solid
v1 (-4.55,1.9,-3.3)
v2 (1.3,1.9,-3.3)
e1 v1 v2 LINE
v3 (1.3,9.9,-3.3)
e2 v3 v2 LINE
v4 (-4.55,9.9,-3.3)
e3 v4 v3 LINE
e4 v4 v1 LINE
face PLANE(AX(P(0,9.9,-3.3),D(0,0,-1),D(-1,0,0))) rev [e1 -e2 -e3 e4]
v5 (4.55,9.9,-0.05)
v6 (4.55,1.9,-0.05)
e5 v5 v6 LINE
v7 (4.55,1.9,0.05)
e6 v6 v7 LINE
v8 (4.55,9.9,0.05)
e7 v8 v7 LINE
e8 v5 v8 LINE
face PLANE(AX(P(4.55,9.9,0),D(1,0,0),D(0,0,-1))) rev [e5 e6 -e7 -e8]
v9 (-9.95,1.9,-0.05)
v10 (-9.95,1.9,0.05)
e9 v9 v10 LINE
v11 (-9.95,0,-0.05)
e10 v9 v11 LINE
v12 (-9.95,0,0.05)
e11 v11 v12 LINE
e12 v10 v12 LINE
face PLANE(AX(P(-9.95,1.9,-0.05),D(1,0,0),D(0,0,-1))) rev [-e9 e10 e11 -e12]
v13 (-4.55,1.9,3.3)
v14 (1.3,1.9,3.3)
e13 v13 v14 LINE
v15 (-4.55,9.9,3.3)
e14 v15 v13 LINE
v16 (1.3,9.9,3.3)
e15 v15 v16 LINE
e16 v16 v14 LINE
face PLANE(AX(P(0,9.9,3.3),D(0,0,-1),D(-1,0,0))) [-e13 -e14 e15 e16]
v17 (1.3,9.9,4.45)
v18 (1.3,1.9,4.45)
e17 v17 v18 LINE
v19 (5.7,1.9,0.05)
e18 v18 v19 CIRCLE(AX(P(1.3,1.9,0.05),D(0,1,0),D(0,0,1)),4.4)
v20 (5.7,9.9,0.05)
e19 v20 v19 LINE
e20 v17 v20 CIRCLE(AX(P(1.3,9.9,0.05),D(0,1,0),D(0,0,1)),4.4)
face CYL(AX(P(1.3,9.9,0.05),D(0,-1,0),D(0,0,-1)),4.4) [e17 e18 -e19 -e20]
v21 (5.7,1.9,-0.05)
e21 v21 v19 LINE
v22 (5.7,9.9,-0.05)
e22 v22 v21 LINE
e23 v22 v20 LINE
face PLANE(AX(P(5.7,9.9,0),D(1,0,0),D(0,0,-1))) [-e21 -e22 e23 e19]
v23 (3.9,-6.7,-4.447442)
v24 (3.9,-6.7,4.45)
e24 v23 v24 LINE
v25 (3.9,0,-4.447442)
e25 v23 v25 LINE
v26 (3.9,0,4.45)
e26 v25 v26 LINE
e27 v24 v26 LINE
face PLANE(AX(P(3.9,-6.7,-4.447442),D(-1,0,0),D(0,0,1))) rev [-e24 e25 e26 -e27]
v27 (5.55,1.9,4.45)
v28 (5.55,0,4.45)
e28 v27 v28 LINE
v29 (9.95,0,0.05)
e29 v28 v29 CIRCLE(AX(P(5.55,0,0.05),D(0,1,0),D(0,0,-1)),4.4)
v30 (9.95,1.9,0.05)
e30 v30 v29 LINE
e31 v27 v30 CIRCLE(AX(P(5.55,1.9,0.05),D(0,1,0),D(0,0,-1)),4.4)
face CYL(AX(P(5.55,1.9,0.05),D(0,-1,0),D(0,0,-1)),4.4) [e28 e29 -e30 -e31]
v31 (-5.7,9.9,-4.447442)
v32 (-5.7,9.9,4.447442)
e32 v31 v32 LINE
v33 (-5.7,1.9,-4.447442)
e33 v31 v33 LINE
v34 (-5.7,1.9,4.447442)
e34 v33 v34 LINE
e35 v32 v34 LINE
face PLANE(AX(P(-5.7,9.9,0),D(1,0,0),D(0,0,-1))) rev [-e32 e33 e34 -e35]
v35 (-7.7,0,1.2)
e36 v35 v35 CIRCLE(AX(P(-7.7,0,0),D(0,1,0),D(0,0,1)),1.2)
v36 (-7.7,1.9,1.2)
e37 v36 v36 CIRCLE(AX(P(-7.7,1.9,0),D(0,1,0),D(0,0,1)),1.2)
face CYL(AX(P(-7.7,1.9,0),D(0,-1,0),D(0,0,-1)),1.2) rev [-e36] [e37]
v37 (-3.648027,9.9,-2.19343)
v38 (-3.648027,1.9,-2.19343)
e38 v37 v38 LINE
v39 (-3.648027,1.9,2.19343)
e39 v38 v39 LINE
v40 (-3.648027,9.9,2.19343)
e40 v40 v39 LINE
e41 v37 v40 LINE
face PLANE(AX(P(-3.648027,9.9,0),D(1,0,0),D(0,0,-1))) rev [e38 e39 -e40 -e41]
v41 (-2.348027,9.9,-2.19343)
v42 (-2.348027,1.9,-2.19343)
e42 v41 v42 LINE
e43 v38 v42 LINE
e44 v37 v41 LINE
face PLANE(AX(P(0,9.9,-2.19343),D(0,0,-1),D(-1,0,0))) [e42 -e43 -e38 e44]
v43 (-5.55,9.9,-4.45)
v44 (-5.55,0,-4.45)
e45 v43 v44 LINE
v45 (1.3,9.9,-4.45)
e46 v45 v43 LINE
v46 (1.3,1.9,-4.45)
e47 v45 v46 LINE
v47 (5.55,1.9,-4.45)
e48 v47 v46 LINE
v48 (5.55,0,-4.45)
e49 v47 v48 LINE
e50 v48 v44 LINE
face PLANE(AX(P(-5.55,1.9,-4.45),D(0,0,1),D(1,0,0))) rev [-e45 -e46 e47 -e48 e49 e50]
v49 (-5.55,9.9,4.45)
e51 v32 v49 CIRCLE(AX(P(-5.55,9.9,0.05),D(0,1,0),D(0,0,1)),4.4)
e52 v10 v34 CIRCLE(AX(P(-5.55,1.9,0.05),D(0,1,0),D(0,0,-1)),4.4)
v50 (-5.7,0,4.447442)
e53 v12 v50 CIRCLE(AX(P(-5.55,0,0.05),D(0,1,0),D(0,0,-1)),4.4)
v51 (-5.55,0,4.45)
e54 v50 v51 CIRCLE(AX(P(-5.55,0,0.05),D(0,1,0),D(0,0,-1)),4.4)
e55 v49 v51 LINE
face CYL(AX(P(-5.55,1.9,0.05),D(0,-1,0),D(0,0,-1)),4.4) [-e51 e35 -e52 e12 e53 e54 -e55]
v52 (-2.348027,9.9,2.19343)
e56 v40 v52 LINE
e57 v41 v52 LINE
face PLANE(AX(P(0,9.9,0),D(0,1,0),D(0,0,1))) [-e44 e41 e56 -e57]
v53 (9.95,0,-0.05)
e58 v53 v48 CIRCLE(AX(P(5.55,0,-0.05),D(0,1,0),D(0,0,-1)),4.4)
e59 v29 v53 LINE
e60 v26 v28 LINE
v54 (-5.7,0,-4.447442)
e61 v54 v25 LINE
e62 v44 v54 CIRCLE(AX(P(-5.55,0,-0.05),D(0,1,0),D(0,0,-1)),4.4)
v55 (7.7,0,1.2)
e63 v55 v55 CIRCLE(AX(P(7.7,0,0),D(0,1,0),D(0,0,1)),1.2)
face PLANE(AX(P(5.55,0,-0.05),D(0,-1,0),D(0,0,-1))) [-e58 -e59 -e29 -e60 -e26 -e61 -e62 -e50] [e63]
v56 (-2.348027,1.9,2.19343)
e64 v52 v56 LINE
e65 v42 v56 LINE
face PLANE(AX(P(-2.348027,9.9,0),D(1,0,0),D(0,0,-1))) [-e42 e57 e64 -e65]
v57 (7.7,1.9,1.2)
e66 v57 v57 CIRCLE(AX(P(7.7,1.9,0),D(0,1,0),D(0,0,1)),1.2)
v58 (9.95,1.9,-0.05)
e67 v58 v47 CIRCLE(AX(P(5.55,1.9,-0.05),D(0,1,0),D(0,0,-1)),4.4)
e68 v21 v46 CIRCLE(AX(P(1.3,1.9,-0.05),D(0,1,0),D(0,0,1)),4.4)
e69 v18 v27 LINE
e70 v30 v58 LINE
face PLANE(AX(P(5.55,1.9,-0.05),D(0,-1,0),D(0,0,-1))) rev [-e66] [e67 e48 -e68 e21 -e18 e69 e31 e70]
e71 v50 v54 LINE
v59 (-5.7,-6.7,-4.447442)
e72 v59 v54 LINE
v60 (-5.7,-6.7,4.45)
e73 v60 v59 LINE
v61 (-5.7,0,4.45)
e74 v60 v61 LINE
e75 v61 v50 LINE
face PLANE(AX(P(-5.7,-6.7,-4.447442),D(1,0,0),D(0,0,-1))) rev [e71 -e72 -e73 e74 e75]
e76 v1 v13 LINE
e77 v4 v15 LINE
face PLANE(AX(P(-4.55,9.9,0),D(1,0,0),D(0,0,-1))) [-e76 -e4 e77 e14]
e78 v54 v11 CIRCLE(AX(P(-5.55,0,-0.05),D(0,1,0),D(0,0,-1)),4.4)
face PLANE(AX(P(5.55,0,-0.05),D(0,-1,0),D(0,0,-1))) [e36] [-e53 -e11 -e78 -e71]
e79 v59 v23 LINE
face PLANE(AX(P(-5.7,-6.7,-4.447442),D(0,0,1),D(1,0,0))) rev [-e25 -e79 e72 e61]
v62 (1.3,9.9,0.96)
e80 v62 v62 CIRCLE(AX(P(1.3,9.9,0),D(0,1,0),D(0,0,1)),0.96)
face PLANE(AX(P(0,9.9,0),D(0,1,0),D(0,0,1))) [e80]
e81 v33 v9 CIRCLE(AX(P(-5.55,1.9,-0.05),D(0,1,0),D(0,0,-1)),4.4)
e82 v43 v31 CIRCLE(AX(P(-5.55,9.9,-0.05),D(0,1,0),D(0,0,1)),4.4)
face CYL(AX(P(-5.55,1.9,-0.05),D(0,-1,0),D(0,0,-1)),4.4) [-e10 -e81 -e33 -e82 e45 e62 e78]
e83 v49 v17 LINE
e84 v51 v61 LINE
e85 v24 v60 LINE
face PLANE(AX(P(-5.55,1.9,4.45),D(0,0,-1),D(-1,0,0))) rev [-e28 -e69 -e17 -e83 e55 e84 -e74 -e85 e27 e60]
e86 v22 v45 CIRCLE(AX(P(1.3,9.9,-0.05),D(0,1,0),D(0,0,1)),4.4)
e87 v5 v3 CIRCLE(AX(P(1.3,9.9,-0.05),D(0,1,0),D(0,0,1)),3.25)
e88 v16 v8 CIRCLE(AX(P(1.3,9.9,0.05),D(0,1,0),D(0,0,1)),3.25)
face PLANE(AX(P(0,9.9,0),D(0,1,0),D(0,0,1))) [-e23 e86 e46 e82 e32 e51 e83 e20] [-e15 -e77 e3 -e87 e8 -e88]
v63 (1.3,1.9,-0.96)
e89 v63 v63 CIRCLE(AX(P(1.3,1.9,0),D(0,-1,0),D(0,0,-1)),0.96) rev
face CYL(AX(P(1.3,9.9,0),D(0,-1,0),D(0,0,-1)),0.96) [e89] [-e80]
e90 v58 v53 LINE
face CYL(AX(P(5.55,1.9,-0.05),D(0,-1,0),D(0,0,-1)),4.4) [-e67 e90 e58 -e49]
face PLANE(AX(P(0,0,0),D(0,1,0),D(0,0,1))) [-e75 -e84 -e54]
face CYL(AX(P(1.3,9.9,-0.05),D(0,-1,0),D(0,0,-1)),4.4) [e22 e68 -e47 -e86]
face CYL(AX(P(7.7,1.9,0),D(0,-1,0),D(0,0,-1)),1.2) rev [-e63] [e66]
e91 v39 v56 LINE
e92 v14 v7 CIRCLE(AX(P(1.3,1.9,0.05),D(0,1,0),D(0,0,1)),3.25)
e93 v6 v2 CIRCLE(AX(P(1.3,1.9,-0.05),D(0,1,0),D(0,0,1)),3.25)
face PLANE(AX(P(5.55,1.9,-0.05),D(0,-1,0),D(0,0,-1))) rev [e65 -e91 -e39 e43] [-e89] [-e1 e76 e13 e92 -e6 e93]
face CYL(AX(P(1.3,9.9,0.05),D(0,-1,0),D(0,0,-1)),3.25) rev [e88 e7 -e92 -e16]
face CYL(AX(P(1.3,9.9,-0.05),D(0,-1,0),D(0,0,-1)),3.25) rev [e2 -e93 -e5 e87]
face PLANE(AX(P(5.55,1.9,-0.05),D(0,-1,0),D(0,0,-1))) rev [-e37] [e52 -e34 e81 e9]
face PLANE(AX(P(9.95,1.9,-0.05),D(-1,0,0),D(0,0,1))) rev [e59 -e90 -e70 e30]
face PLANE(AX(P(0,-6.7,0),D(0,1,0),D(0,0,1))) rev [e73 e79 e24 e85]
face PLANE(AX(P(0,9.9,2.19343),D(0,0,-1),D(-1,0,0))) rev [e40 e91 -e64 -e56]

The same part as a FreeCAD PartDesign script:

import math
import FreeCAD as App
import Part
import Sketcher

doc = App.newDocument("Part")
body = doc.addObject("PartDesign::Body", "Body")

# Sketch on XZ plane
sketch1 = body.newObject("Sketcher::SketchObject", "Sketch")
sketch1.AttachmentSupport = (doc.getObject("XZ_Plane"), [""])
sketch1.MapMode = "FlatFace"
sketch1.addGeometry(Part.LineSegment(App.Vector(5.55, -4.45, 0), App.Vector(-5.55, -4.45, 0)), False)
sketch1.addGeometry(Part.ArcOfCircle(Part.Circle(App.Vector(-5.55, -0.05, 0), App.Vector(0, 0, 1), 4.4), math.radians(-180), math.radians(-90)), False)
sketch1.addGeometry(Part.LineSegment(App.Vector(-9.95, -0.05, 0), App.Vector(-9.95, 0.05, 0)), False)
sketch1.addGeometry(Part.ArcOfCircle(Part.Circle(App.Vector(-5.55, 0.05, 0), App.Vector(0, 0, 1), 4.4), math.radians(90), math.radians(180)), False)
sketch1.addGeometry(Part.LineSegment(App.Vector(-5.55, 4.45, 0), App.Vector(5.55, 4.45, 0)), False)
sketch1.addGeometry(Part.ArcOfCircle(Part.Circle(App.Vector(5.55, 0.05, 0), App.Vector(0, 0, 1), 4.4), math.radians(0), math.radians(90)), False)
sketch1.addGeometry(Part.LineSegment(App.Vector(9.95, 0.05, 0), App.Vector(9.95, -0.05, 0)), False)
sketch1.addGeometry(Part.ArcOfCircle(Part.Circle(App.Vector(5.55, -0.05, 0), App.Vector(0, 0, 1), 4.4), math.radians(-90), math.radians(0)), False)
sketch1.addGeometry(Part.Circle(App.Vector(7.7, 0, 0), App.Vector(0, 0, 1), 1.2), False)
sketch1.addGeometry(Part.Circle(App.Vector(-7.7, 0, 0), App.Vector(0, 0, 1), 1.2), False)
sketch1.addConstraint(Sketcher.Constraint("Tangent", 0, 2, 1, 2))
sketch1.addConstraint(Sketcher.Constraint("Tangent", 1, 1, 2, 1))
sketch1.addConstraint(Sketcher.Constraint("Tangent", 2, 2, 3, 2))
sketch1.addConstraint(Sketcher.Constraint("Tangent", 3, 1, 4, 1))
sketch1.addConstraint(Sketcher.Constraint("Tangent", 4, 2, 5, 2))
sketch1.addConstraint(Sketcher.Constraint("Tangent", 5, 1, 6, 1))
sketch1.addConstraint(Sketcher.Constraint("Tangent", 6, 2, 7, 2))
sketch1.addConstraint(Sketcher.Constraint("Tangent", 7, 1, 0, 1))
sketch1.addConstraint(Sketcher.Constraint("Horizontal", 0))
sketch1.addConstraint(Sketcher.Constraint("Vertical", 2))
sketch1.addConstraint(Sketcher.Constraint("Horizontal", 4))
sketch1.addConstraint(Sketcher.Constraint("Vertical", 6))
sketch1.addConstraint(Sketcher.Constraint("Equal", 1, 3))
sketch1.addConstraint(Sketcher.Constraint("Equal", 3, 5))
sketch1.addConstraint(Sketcher.Constraint("Equal", 5, 7))
sketch1.addConstraint(Sketcher.Constraint("Equal", 8, 9))
sketch1.addConstraint(Sketcher.Constraint("Symmetric", 1, 3, 5, 3, -1, 1))
sketch1.addConstraint(Sketcher.Constraint("Symmetric", 8, 3, 9, 3, -1, 1))
sketch1.addConstraint(Sketcher.Constraint("PointOnObject", 8, 3, -1))
sketch1.addConstraint(Sketcher.Constraint("Diameter", 8, 2.4))
sketch1.addConstraint(Sketcher.Constraint("Radius", 1, 4.4))
sketch1.addConstraint(Sketcher.Constraint("DistanceX", 0, 2, 0, 1, 11.1))
sketch1.addConstraint(Sketcher.Constraint("DistanceY", 2, 1, 2, 2, 0.1))
sketch1.addConstraint(Sketcher.Constraint("DistanceX", -1, 1, 8, 3, 7.7))
pad1 = body.newObject("PartDesign::Pad", "Pad")
pad1.Profile = sketch1
pad1.Length = 1.9
pad1.Reversed = True

# Sketch on XZ plane
sketch2 = body.newObject("Sketcher::SketchObject", "Sketch001")
sketch2.AttachmentSupport = (doc.getObject("XZ_Plane"), [""])
sketch2.MapMode = "FlatFace"
sketch2.AttachmentOffset = App.Placement(App.Vector(0, 0, -1.9), App.Rotation())
sketch2.addGeometry(Part.LineSegment(App.Vector(1.3, -4.45, 0), App.Vector(-5.55, -4.45, 0)), False)
sketch2.addGeometry(Part.ArcOfCircle(Part.Circle(App.Vector(-5.55, -0.05, 0), App.Vector(0, 0, 1), 4.4), math.radians(-91.95), math.radians(-90)), False)
sketch2.addGeometry(Part.LineSegment(App.Vector(-5.7, -4.45, 0), App.Vector(-5.7, 4.45, 0)), False)
sketch2.addGeometry(Part.ArcOfCircle(Part.Circle(App.Vector(-5.55, 0.05, 0), App.Vector(0, 0, 1), 4.4), math.radians(90), math.radians(91.95)), False)
sketch2.addGeometry(Part.LineSegment(App.Vector(-5.55, 4.45, 0), App.Vector(1.3, 4.45, 0)), False)
sketch2.addGeometry(Part.ArcOfCircle(Part.Circle(App.Vector(1.3, 0.05, 0), App.Vector(0, 0, 1), 4.4), math.radians(0), math.radians(90)), False)
sketch2.addGeometry(Part.LineSegment(App.Vector(5.7, 0.05, 0), App.Vector(5.7, -0.05, 0)), False)
sketch2.addGeometry(Part.ArcOfCircle(Part.Circle(App.Vector(1.3, -0.05, 0), App.Vector(0, 0, 1), 4.4), math.radians(-90), math.radians(0)), False)
sketch2.addGeometry(Part.LineSegment(App.Vector(1.3, 3.3, 0), App.Vector(-4.55, 3.3, 0)), False)
sketch2.addGeometry(Part.LineSegment(App.Vector(-4.55, 3.3, 0), App.Vector(-4.55, -3.3, 0)), False)
sketch2.addGeometry(Part.LineSegment(App.Vector(-4.55, -3.3, 0), App.Vector(1.3, -3.3, 0)), False)
sketch2.addGeometry(Part.ArcOfCircle(Part.Circle(App.Vector(1.3, -0.05, 0), App.Vector(0, 0, 1), 3.25), math.radians(-90), math.radians(0)), False)
sketch2.addGeometry(Part.LineSegment(App.Vector(4.55, -0.05, 0), App.Vector(4.55, 0.05, 0)), False)
sketch2.addGeometry(Part.ArcOfCircle(Part.Circle(App.Vector(1.3, 0.05, 0), App.Vector(0, 0, 1), 3.25), math.radians(0), math.radians(90)), False)
sketch2.addGeometry(Part.LineSegment(App.Vector(-3.65, -2.19, 0), App.Vector(-3.65, 2.19, 0)), False)
sketch2.addGeometry(Part.LineSegment(App.Vector(-3.65, 2.19, 0), App.Vector(-2.35, 2.19, 0)), False)
sketch2.addGeometry(Part.LineSegment(App.Vector(-2.35, 2.19, 0), App.Vector(-2.35, -2.19, 0)), False)
sketch2.addGeometry(Part.LineSegment(App.Vector(-2.35, -2.19, 0), App.Vector(-3.65, -2.19, 0)), False)
sketch2.addGeometry(Part.Circle(App.Vector(1.3, 0, 0), App.Vector(0, 0, 1), 0.96), False)
sketch2.addConstraint(Sketcher.Constraint("Tangent", 0, 2, 1, 2))
sketch2.addConstraint(Sketcher.Constraint("Coincident", 1, 1, 2, 1))
sketch2.addConstraint(Sketcher.Constraint("Coincident", 2, 2, 3, 2))
sketch2.addConstraint(Sketcher.Constraint("Tangent", 3, 1, 4, 1))
sketch2.addConstraint(Sketcher.Constraint("Tangent", 4, 2, 5, 2))
sketch2.addConstraint(Sketcher.Constraint("Tangent", 5, 1, 6, 1))
sketch2.addConstraint(Sketcher.Constraint("Tangent", 6, 2, 7, 2))
sketch2.addConstraint(Sketcher.Constraint("Tangent", 7, 1, 0, 1))
sketch2.addConstraint(Sketcher.Constraint("Coincident", 8, 2, 9, 1))
sketch2.addConstraint(Sketcher.Constraint("Coincident", 9, 2, 10, 1))
sketch2.addConstraint(Sketcher.Constraint("Tangent", 10, 2, 11, 1))
sketch2.addConstraint(Sketcher.Constraint("Tangent", 11, 2, 12, 1))
sketch2.addConstraint(Sketcher.Constraint("Tangent", 12, 2, 13, 1))
sketch2.addConstraint(Sketcher.Constraint("Tangent", 13, 2, 8, 1))
sketch2.addConstraint(Sketcher.Constraint("Coincident", 14, 2, 15, 1))
sketch2.addConstraint(Sketcher.Constraint("Coincident", 15, 2, 16, 1))
sketch2.addConstraint(Sketcher.Constraint("Coincident", 16, 2, 17, 1))
sketch2.addConstraint(Sketcher.Constraint("Coincident", 17, 2, 14, 1))
sketch2.addConstraint(Sketcher.Constraint("Horizontal", 0))
sketch2.addConstraint(Sketcher.Constraint("Vertical", 2))
sketch2.addConstraint(Sketcher.Constraint("Horizontal", 4))
sketch2.addConstraint(Sketcher.Constraint("Vertical", 6))
sketch2.addConstraint(Sketcher.Constraint("Horizontal", 8))
sketch2.addConstraint(Sketcher.Constraint("Vertical", 9))
sketch2.addConstraint(Sketcher.Constraint("Horizontal", 10))
sketch2.addConstraint(Sketcher.Constraint("Vertical", 12))
sketch2.addConstraint(Sketcher.Constraint("Vertical", 14))
sketch2.addConstraint(Sketcher.Constraint("Horizontal", 15))
sketch2.addConstraint(Sketcher.Constraint("Vertical", 16))
sketch2.addConstraint(Sketcher.Constraint("Horizontal", 17))
sketch2.addConstraint(Sketcher.Constraint("Coincident", 11, 3, 7, 3))
sketch2.addConstraint(Sketcher.Constraint("Coincident", 13, 3, 5, 3))
sketch2.addConstraint(Sketcher.Constraint("Equal", 1, 3))
sketch2.addConstraint(Sketcher.Constraint("Equal", 5, 7))
sketch2.addConstraint(Sketcher.Constraint("Symmetric", 1, 3, 3, 3, -1))
sketch2.addConstraint(Sketcher.Constraint("PointOnObject", 18, 3, -1))
sketch2.addConstraint(Sketcher.Constraint("Vertical", 13, 3, 18, 3))
sketch2.addConstraint(Sketcher.Constraint("Radius", 5, 4.4))
sketch2.addConstraint(Sketcher.Constraint("Diameter", 18, 1.92))
sketch2.addConstraint(Sketcher.Constraint("Radius", 11, 3.25))
sketch2.addConstraint(Sketcher.Constraint("DistanceX", 15, 1, 15, 2, 1.3))
sketch2.addConstraint(Sketcher.Constraint("DistanceY", 6, 2, 6, 1, 0.1))
sketch2.addConstraint(Sketcher.Constraint("DistanceX", 1, 1, 7, 3, 7.0))
sketch2.addConstraint(Sketcher.Constraint("DistanceX", 3, 1, 8, 2, 1.0))
sketch2.addConstraint(Sketcher.Constraint("DistanceX", 0, 2, 0, 1, 6.85))
sketch2.addConstraint(Sketcher.Constraint("DistanceX", -1, 1, 5, 3, 1.3))
sketch2.addConstraint(Sketcher.Constraint("Radius", 1, 4.400003))
sketch2.addConstraint(Sketcher.Constraint("DistanceY", 14, 1, 14, 2, 4.38686))
sketch2.addConstraint(Sketcher.Constraint("DistanceY", -1, 1, 14, 2, 2.19343))
sketch2.addConstraint(Sketcher.Constraint("DistanceX", 14, 2, -1, 1, 3.648027))
pad2 = body.newObject("PartDesign::Pad", "Pad001")
pad2.Profile = sketch2
pad2.Length = 8
pad2.Reversed = True

# Sketch on XZ plane
sketch3 = body.newObject("Sketcher::SketchObject", "Sketch002")
sketch3.AttachmentSupport = (doc.getObject("XZ_Plane"), [""])
sketch3.MapMode = "FlatFace"
sketch3.addGeometry(Part.LineSegment(App.Vector(-6, 4, 0), App.Vector(-6, -4, 0)), False)
sketch3.addGeometry(Part.LineSegment(App.Vector(-6, -4, 0), App.Vector(4, -4, 0)), False)
sketch3.addGeometry(Part.LineSegment(App.Vector(4, -4, 0), App.Vector(4, 4, 0)), False)
sketch3.addGeometry(Part.LineSegment(App.Vector(4, 4, 0), App.Vector(-6, 4, 0)), False)
sketch3.addConstraint(Sketcher.Constraint("Coincident", 0, 2, 1, 1))
sketch3.addConstraint(Sketcher.Constraint("Coincident", 1, 2, 2, 1))
sketch3.addConstraint(Sketcher.Constraint("Coincident", 2, 2, 3, 1))
sketch3.addConstraint(Sketcher.Constraint("Coincident", 3, 2, 0, 1))
sketch3.addConstraint(Sketcher.Constraint("Vertical", 0))
sketch3.addConstraint(Sketcher.Constraint("Horizontal", 1))
sketch3.addConstraint(Sketcher.Constraint("Vertical", 2))
sketch3.addConstraint(Sketcher.Constraint("Horizontal", 3))
sketch3.addConstraint(Sketcher.Constraint("DistanceX", 1, 1, 1, 2, 9.6))
sketch3.addConstraint(Sketcher.Constraint("DistanceX", 0, 2, -1, 1, 5.7))
sketch3.addConstraint(Sketcher.Constraint("DistanceY", -1, 1, 2, 2, 4.45))
sketch3.addConstraint(Sketcher.Constraint("DistanceY", 0, 2, 0, 1, 8.897442))
pad3 = body.newObject("PartDesign::Pad", "Pad002")
pad3.Profile = sketch3
pad3.Length = 6.7

doc.recompute()
